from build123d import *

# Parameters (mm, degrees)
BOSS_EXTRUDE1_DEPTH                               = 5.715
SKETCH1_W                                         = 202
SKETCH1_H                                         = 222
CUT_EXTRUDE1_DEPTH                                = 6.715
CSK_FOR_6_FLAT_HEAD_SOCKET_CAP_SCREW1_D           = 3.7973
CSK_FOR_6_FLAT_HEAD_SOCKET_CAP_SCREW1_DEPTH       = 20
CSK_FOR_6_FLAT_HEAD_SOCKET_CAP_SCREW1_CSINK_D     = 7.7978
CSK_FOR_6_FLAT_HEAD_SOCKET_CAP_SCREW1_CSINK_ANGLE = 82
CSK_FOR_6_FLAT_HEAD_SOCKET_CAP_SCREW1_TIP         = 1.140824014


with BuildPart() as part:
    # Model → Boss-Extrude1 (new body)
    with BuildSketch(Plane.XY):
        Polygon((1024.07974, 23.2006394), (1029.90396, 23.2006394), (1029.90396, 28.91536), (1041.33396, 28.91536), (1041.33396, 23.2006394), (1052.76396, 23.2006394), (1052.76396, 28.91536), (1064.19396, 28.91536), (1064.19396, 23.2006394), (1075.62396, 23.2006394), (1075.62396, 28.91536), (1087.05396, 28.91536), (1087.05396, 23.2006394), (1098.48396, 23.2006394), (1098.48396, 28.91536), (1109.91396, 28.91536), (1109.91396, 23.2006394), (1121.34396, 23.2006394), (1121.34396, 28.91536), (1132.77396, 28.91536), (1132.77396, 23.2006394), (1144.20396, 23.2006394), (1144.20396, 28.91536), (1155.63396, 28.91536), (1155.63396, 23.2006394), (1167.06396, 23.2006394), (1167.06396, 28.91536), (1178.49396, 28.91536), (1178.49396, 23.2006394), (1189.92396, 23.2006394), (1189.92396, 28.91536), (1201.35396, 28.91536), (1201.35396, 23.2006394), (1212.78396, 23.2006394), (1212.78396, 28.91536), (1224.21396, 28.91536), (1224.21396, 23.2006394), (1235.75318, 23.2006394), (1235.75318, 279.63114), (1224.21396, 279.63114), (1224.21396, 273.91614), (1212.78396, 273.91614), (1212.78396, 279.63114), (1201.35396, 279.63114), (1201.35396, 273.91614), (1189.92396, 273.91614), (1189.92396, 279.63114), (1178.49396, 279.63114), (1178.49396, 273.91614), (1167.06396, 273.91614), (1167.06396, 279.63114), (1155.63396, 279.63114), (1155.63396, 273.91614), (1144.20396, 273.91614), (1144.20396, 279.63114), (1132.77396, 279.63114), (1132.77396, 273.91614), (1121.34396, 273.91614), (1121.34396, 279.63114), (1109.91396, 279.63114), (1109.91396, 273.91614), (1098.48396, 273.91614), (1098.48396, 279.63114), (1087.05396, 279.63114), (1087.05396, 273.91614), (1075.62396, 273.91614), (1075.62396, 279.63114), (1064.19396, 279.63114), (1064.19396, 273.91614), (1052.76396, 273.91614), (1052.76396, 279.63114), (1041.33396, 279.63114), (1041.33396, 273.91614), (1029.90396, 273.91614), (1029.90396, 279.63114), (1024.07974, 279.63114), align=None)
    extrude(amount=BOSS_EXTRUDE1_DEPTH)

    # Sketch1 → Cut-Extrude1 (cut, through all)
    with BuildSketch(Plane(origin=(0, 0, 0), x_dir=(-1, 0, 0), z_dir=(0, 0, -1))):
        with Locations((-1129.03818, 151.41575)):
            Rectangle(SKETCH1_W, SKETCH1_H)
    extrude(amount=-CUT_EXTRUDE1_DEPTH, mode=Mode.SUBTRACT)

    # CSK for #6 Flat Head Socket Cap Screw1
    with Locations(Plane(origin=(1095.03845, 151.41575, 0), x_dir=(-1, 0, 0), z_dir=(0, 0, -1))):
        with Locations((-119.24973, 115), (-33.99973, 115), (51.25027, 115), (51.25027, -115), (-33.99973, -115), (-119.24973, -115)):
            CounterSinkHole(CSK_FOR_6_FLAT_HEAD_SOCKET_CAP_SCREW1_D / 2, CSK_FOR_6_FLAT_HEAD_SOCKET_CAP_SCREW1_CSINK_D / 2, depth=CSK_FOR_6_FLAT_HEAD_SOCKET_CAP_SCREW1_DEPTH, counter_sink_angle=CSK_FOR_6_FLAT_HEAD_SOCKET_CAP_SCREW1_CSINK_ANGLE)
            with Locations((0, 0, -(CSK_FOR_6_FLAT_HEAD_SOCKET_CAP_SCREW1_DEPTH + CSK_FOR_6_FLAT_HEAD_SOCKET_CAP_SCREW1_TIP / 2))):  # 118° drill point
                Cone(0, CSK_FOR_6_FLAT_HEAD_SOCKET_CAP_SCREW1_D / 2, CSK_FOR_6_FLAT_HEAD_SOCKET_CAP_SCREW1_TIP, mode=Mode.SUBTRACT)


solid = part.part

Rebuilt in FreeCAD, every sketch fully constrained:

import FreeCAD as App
import Part
import Sketcher

doc = App.newDocument("Part")
body = doc.addObject("PartDesign::Body", "Body")

# Sketch on XY plane
sketch1 = body.newObject("Sketcher::SketchObject", "Sketch")
sketch1.AttachmentSupport = (doc.getObject("XY_Plane"), [""])
sketch1.MapMode = "FlatFace"
sketch1.addGeometry(Part.LineSegment(App.Vector(1024.07974, 23.200639, 0), App.Vector(1029.90396, 23.200639, 0)), False)
sketch1.addGeometry(Part.LineSegment(App.Vector(1029.90396, 23.200639, 0), App.Vector(1029.90396, 28.91536, 0)), False)
sketch1.addGeometry(Part.LineSegment(App.Vector(1029.90396, 28.91536, 0), App.Vector(1041.33396, 28.91536, 0)), False)
sketch1.addGeometry(Part.LineSegment(App.Vector(1041.33396, 28.91536, 0), App.Vector(1041.33396, 23.200639, 0)), False)
sketch1.addGeometry(Part.LineSegment(App.Vector(1041.33396, 23.200639, 0), App.Vector(1052.76396, 23.200639, 0)), False)
sketch1.addGeometry(Part.LineSegment(App.Vector(1052.76396, 23.200639, 0), App.Vector(1052.76396, 28.91536, 0)), False)
sketch1.addGeometry(Part.LineSegment(App.Vector(1052.76396, 28.91536, 0), App.Vector(1064.19396, 28.91536, 0)), False)
sketch1.addGeometry(Part.LineSegment(App.Vector(1064.19396, 28.91536, 0), App.Vector(1064.19396, 23.200639, 0)), False)
sketch1.addGeometry(Part.LineSegment(App.Vector(1064.19396, 23.200639, 0), App.Vector(1075.62396, 23.200639, 0)), False)
sketch1.addGeometry(Part.LineSegment(App.Vector(1075.62396, 23.200639, 0), App.Vector(1075.62396, 28.91536, 0)), False)
sketch1.addGeometry(Part.LineSegment(App.Vector(1075.62396, 28.91536, 0), App.Vector(1087.05396, 28.91536, 0)), False)
sketch1.addGeometry(Part.LineSegment(App.Vector(1087.05396, 28.91536, 0), App.Vector(1087.05396, 23.200639, 0)), False)
sketch1.addGeometry(Part.LineSegment(App.Vector(1087.05396, 23.200639, 0), App.Vector(1098.48396, 23.200639, 0)), False)
sketch1.addGeometry(Part.LineSegment(App.Vector(1098.48396, 23.200639, 0), App.Vector(1098.48396, 28.91536, 0)), False)
sketch1.addGeometry(Part.LineSegment(App.Vector(1098.48396, 28.91536, 0), App.Vector(1109.91396, 28.91536, 0)), False)
sketch1.addGeometry(Part.LineSegment(App.Vector(1109.91396, 28.91536, 0), App.Vector(1109.91396, 23.200639, 0)), False)
sketch1.addGeometry(Part.LineSegment(App.Vector(1109.91396, 23.200639, 0), App.Vector(1121.34396, 23.200639, 0)), False)
sketch1.addGeometry(Part.LineSegment(App.Vector(1121.34396, 23.200639, 0), App.Vector(1121.34396, 28.91536, 0)), False)
sketch1.addGeometry(Part.LineSegment(App.Vector(1121.34396, 28.91536, 0), App.Vector(1132.77396, 28.91536, 0)), False)
sketch1.addGeometry(Part.LineSegment(App.Vector(1132.77396, 28.91536, 0), App.Vector(1132.77396, 23.200639, 0)), False)
sketch1.addGeometry(Part.LineSegment(App.Vector(1132.77396, 23.200639, 0), App.Vector(1144.20396, 23.200639, 0)), False)
sketch1.addGeometry(Part.LineSegment(App.Vector(1144.20396, 23.200639, 0), App.Vector(1144.20396, 28.91536, 0)), False)
sketch1.addGeometry(Part.LineSegment(App.Vector(1144.20396, 28.91536, 0), App.Vector(1155.63396, 28.91536, 0)), False)
sketch1.addGeometry(Part.LineSegment(App.Vector(1155.63396, 28.91536, 0), App.Vector(1155.63396, 23.200639, 0)), False)
sketch1.addGeometry(Part.LineSegment(App.Vector(1155.63396, 23.200639, 0), App.Vector(1167.06396, 23.200639, 0)), False)
sketch1.addGeometry(Part.LineSegment(App.Vector(1167.06396, 23.200639, 0), App.Vector(1167.06396, 28.91536, 0)), False)
sketch1.addGeometry(Part.LineSegment(App.Vector(1167.06396, 28.91536, 0), App.Vector(1178.49396, 28.91536, 0)), False)
sketch1.addGeometry(Part.LineSegment(App.Vector(1178.49396, 28.91536, 0), App.Vector(1178.49396, 23.200639, 0)), False)
sketch1.addGeometry(Part.LineSegment(App.Vector(1178.49396, 23.200639, 0), App.Vector(1189.92396, 23.200639, 0)), False)
sketch1.addGeometry(Part.LineSegment(App.Vector(1189.92396, 23.200639, 0), App.Vector(1189.92396, 28.91536, 0)), False)
sketch1.addGeometry(Part.LineSegment(App.Vector(1189.92396, 28.91536, 0), App.Vector(1201.35396, 28.91536, 0)), False)
sketch1.addGeometry(Part.LineSegment(App.Vector(1201.35396, 28.91536, 0), App.Vector(1201.35396, 23.200639, 0)), False)
sketch1.addGeometry(Part.LineSegment(App.Vector(1201.35396, 23.200639, 0), App.Vector(1212.78396, 23.200639, 0)), False)
sketch1.addGeometry(Part.LineSegment(App.Vector(1212.78396, 23.200639, 0), App.Vector(1212.78396, 28.91536, 0)), False)
sketch1.addGeometry(Part.LineSegment(App.Vector(1212.78396, 28.91536, 0), App.Vector(1224.21396, 28.91536, 0)), False)
sketch1.addGeometry(Part.LineSegment(App.Vector(1224.21396, 28.91536, 0), App.Vector(1224.21396, 23.200639, 0)), False)
sketch1.addGeometry(Part.LineSegment(App.Vector(1224.21396, 23.200639, 0), App.Vector(1235.75318, 23.200639, 0)), False)
sketch1.addGeometry(Part.LineSegment(App.Vector(1235.75318, 23.200639, 0), App.Vector(1235.75318, 279.63114, 0)), False)
sketch1.addGeometry(Part.LineSegment(App.Vector(1235.75318, 279.63114, 0), App.Vector(1224.21396, 279.63114, 0)), False)
sketch1.addGeometry(Part.LineSegment(App.Vector(1224.21396, 279.63114, 0), App.Vector(1224.21396, 273.91614, 0)), False)
sketch1.addGeometry(Part.LineSegment(App.Vector(1224.21396, 273.91614, 0), App.Vector(1212.78396, 273.91614, 0)), False)
sketch1.addGeometry(Part.LineSegment(App.Vector(1212.78396, 273.91614, 0), App.Vector(1212.78396, 279.63114, 0)), False)
sketch1.addGeometry(Part.LineSegment(App.Vector(1212.78396, 279.63114, 0), App.Vector(1201.35396, 279.63114, 0)), False)
sketch1.addGeometry(Part.LineSegment(App.Vector(1201.35396, 279.63114, 0), App.Vector(1201.35396, 273.91614, 0)), False)
sketch1.addGeometry(Part.LineSegment(App.Vector(1201.35396, 273.91614, 0), App.Vector(1189.92396, 273.91614, 0)), False)
sketch1.addGeometry(Part.LineSegment(App.Vector(1189.92396, 273.91614, 0), App.Vector(1189.92396, 279.63114, 0)), False)
sketch1.addGeometry(Part.LineSegment(App.Vector(1189.92396, 279.63114, 0), App.Vector(1178.49396, 279.63114, 0)), False)
sketch1.addGeometry(Part.LineSegment(App.Vector(1178.49396, 279.63114, 0), App.Vector(1178.49396, 273.91614, 0)), False)
sketch1.addGeometry(Part.LineSegment(App.Vector(1178.49396, 273.91614, 0), App.Vector(1167.06396, 273.91614, 0)), False)
sketch1.addGeometry(Part.LineSegment(App.Vector(1167.06396, 273.91614, 0), App.Vector(1167.06396, 279.63114, 0)), False)
sketch1.addGeometry(Part.LineSegment(App.Vector(1167.06396, 279.63114, 0), App.Vector(1155.63396, 279.63114, 0)), False)
sketch1.addGeometry(Part.LineSegment(App.Vector(1155.63396, 279.63114, 0), App.Vector(1155.63396, 273.91614, 0)), False)
sketch1.addGeometry(Part.LineSegment(App.Vector(1155.63396, 273.91614, 0), App.Vector(1144.20396, 273.91614, 0)), False)
sketch1.addGeometry(Part.LineSegment(App.Vector(1144.20396, 273.91614, 0), App.Vector(1144.20396, 279.63114, 0)), False)
sketch1.addGeometry(Part.LineSegment(App.Vector(1144.20396, 279.63114, 0), App.Vector(1132.77396, 279.63114, 0)), False)
sketch1.addGeometry(Part.LineSegment(App.Vector(1132.77396, 279.63114, 0), App.Vector(1132.77396, 273.91614, 0)), False)
sketch1.addGeometry(Part.LineSegment(App.Vector(1132.77396, 273.91614, 0), App.Vector(1121.34396, 273.91614, 0)), False)
sketch1.addGeometry(Part.LineSegment(App.Vector(1121.34396, 273.91614, 0), App.Vector(1121.34396, 279.63114, 0)), False)
sketch1.addGeometry(Part.LineSegment(App.Vector(1121.34396, 279.63114, 0), App.Vector(1109.91396, 279.63114, 0)), False)
sketch1.addGeometry(Part.LineSegment(App.Vector(1109.91396, 279.63114, 0), App.Vector(1109.91396, 273.91614, 0)), False)
sketch1.addGeometry(Part.LineSegment(App.Vector(1109.91396, 273.91614, 0), App.Vector(1098.48396, 273.91614, 0)), False)
sketch1.addGeometry(Part.LineSegment(App.Vector(1098.48396, 273.91614, 0), App.Vector(1098.48396, 279.63114, 0)), False)
sketch1.addGeometry(Part.LineSegment(App.Vector(1098.48396, 279.63114, 0), App.Vector(1087.05396, 279.63114, 0)), False)
sketch1.addGeometry(Part.LineSegment(App.Vector(1087.05396, 279.63114, 0), App.Vector(1087.05396, 273.91614, 0)), False)
sketch1.addGeometry(Part.LineSegment(App.Vector(1087.05396, 273.91614, 0), App.Vector(1075.62396, 273.91614, 0)), False)
sketch1.addGeometry(Part.LineSegment(App.Vector(1075.62396, 273.91614, 0), App.Vector(1075.62396, 279.63114, 0)), False)
sketch1.addGeometry(Part.LineSegment(App.Vector(1075.62396, 279.63114, 0), App.Vector(1064.19396, 279.63114, 0)), False)
sketch1.addGeometry(Part.LineSegment(App.Vector(1064.19396, 279.63114, 0), App.Vector(1064.19396, 273.91614, 0)), False)
sketch1.addGeometry(Part.LineSegment(App.Vector(1064.19396, 273.91614, 0), App.Vector(1052.76396, 273.91614, 0)), False)
sketch1.addGeometry(Part.LineSegment(App.Vector(1052.76396, 273.91614, 0), App.Vector(1052.76396, 279.63114, 0)), False)
sketch1.addGeometry(Part.LineSegment(App.Vector(1052.76396, 279.63114, 0), App.Vector(1041.33396, 279.63114, 0)), False)
sketch1.addGeometry(Part.LineSegment(App.Vector(1041.33396, 279.63114, 0), App.Vector(1041.33396, 273.91614, 0)), False)
sketch1.addGeometry(Part.LineSegment(App.Vector(1041.33396, 273.91614, 0), App.Vector(1029.90396, 273.91614, 0)), False)
sketch1.addGeometry(Part.LineSegment(App.Vector(1029.90396, 273.91614, 0), App.Vector(1029.90396, 279.63114, 0)), False)
sketch1.addGeometry(Part.LineSegment(App.Vector(1029.90396, 279.63114, 0), App.Vector(1024.07974, 279.63114, 0)), False)
sketch1.addGeometry(Part.LineSegment(App.Vector(1024.07974, 279.63114, 0), App.Vector(1024.07974, 23.200639, 0)), False)
sketch1.addConstraint(Sketcher.Constraint("Coincident", 0, 2, 1, 1))
sketch1.addConstraint(Sketcher.Constraint("Coincident", 1, 2, 2, 1))
sketch1.addConstraint(Sketcher.Constraint("Coincident", 2, 2, 3, 1))
sketch1.addConstraint(Sketcher.Constraint("Coincident", 3, 2, 4, 1))
sketch1.addConstraint(Sketcher.Constraint("Coincident", 4, 2, 5, 1))
sketch1.addConstraint(Sketcher.Constraint("Coincident", 5, 2, 6, 1))
sketch1.addConstraint(Sketcher.Constraint("Coincident", 6, 2, 7, 1))
sketch1.addConstraint(Sketcher.Constraint("Coincident", 7, 2, 8, 1))
sketch1.addConstraint(Sketcher.Constraint("Coincident", 8, 2, 9, 1))
sketch1.addConstraint(Sketcher.Constraint("Coincident", 9, 2, 10, 1))
sketch1.addConstraint(Sketcher.Constraint("Coincident", 10, 2, 11, 1))
sketch1.addConstraint(Sketcher.Constraint("Coincident", 11, 2, 12, 1))
sketch1.addConstraint(Sketcher.Constraint("Coincident", 12, 2, 13, 1))
sketch1.addConstraint(Sketcher.Constraint("Coincident", 13, 2, 14, 1))
sketch1.addConstraint(Sketcher.Constraint("Coincident", 14, 2, 15, 1))
sketch1.addConstraint(Sketcher.Constraint("Coincident", 15, 2, 16, 1))
sketch1.addConstraint(Sketcher.Constraint("Coincident", 16, 2, 17, 1))
sketch1.addConstraint(Sketcher.Constraint("Coincident", 17, 2, 18, 1))
sketch1.addConstraint(Sketcher.Constraint("Coincident", 18, 2, 19, 1))
sketch1.addConstraint(Sketcher.Constraint("Coincident", 19, 2, 20, 1))
sketch1.addConstraint(Sketcher.Constraint("Coincident", 20, 2, 21, 1))
sketch1.addConstraint(Sketcher.Constraint("Coincident", 21, 2, 22, 1))
sketch1.addConstraint(Sketcher.Constraint("Coincident", 22, 2, 23, 1))
sketch1.addConstraint(Sketcher.Constraint("Coincident", 23, 2, 24, 1))
sketch1.addConstraint(Sketcher.Constraint("Coincident", 24, 2, 25, 1))
sketch1.addConstraint(Sketcher.Constraint("Coincident", 25, 2, 26, 1))
sketch1.addConstraint(Sketcher.Constraint("Coincident", 26, 2, 27, 1))
sketch1.addConstraint(Sketcher.Constraint("Coincident", 27, 2, 28, 1))
sketch1.addConstraint(Sketcher.Constraint("Coincident", 28, 2, 29, 1))
sketch1.addConstraint(Sketcher.Constraint("Coincident", 29, 2, 30, 1))
sketch1.addConstraint(Sketcher.Constraint("Coincident", 30, 2, 31, 1))
sketch1.addConstraint(Sketcher.Constraint("Coincident", 31, 2, 32, 1))
sketch1.addConstraint(Sketcher.Constraint("Coincident", 32, 2, 33, 1))
sketch1.addConstraint(Sketcher.Constraint("Coincident", 33, 2, 34, 1))
sketch1.addConstraint(Sketcher.Constraint("Coincident", 34, 2, 35, 1))
sketch1.addConstraint(Sketcher.Constraint("Coincident", 35, 2, 36, 1))
sketch1.addConstraint(Sketcher.Constraint("Coincident", 36, 2, 37, 1))
sketch1.addConstraint(Sketcher.Constraint("Coincident", 37, 2, 38, 1))
sketch1.addConstraint(Sketcher.Constraint("Coincident", 38, 2, 39, 1))
sketch1.addConstraint(Sketcher.Constraint("Coincident", 39, 2, 40, 1))
sketch1.addConstraint(Sketcher.Constraint("Coincident", 40, 2, 41, 1))
sketch1.addConstraint(Sketcher.Constraint("Coincident", 41, 2, 42, 1))
sketch1.addConstraint(Sketcher.Constraint("Coincident", 42, 2, 43, 1))
sketch1.addConstraint(Sketcher.Constraint("Coincident", 43, 2, 44, 1))
sketch1.addConstraint(Sketcher.Constraint("Coincident", 44, 2, 45, 1))
sketch1.addConstraint(Sketcher.Constraint("Coincident", 45, 2, 46, 1))
sketch1.addConstraint(Sketcher.Constraint("Coincident", 46, 2, 47, 1))
sketch1.addConstraint(Sketcher.Constraint("Coincident", 47, 2, 48, 1))
sketch1.addConstraint(Sketcher.Constraint("Coincident", 48, 2, 49, 1))
sketch1.addConstraint(Sketcher.Constraint("Coincident", 49, 2, 50, 1))
sketch1.addConstraint(Sketcher.Constraint("Coincident", 50, 2, 51, 1))
sketch1.addConstraint(Sketcher.Constraint("Coincident", 51, 2, 52, 1))
sketch1.addConstraint(Sketcher.Constraint("Coincident", 52, 2, 53, 1))
sketch1.addConstraint(Sketcher.Constraint("Coincident", 53, 2, 54, 1))
sketch1.addConstraint(Sketcher.Constraint("Coincident", 54, 2, 55, 1))
sketch1.addConstraint(Sketcher.Constraint("Coincident", 55, 2, 56, 1))
sketch1.addConstraint(Sketcher.Constraint("Coincident", 56, 2, 57, 1))
sketch1.addConstraint(Sketcher.Constraint("Coincident", 57, 2, 58, 1))
sketch1.addConstraint(Sketcher.Constraint("Coincident", 58, 2, 59, 1))
sketch1.addConstraint(Sketcher.Constraint("Coincident", 59, 2, 60, 1))
sketch1.addConstraint(Sketcher.Constraint("Coincident", 60, 2, 61, 1))
sketch1.addConstraint(Sketcher.Constraint("Coincident", 61, 2, 62, 1))
sketch1.addConstraint(Sketcher.Constraint("Coincident", 62, 2, 63, 1))
sketch1.addConstraint(Sketcher.Constraint("Coincident", 63, 2, 64, 1))
sketch1.addConstraint(Sketcher.Constraint("Coincident", 64, 2, 65, 1))
sketch1.addConstraint(Sketcher.Constraint("Coincident", 65, 2, 66, 1))
sketch1.addConstraint(Sketcher.Constraint("Coincident", 66, 2, 67, 1))
sketch1.addConstraint(Sketcher.Constraint("Coincident", 67, 2, 68, 1))
sketch1.addConstraint(Sketcher.Constraint("Coincident", 68, 2, 69, 1))
sketch1.addConstraint(Sketcher.Constraint("Coincident", 69, 2, 70, 1))
sketch1.addConstraint(Sketcher.Constraint("Coincident", 70, 2, 71, 1))
sketch1.addConstraint(Sketcher.Constraint("Coincident", 71, 2, 72, 1))
sketch1.addConstraint(Sketcher.Constraint("Coincident", 72, 2, 73, 1))
sketch1.addConstraint(Sketcher.Constraint("Coincident", 73, 2, 74, 1))
sketch1.addConstraint(Sketcher.Constraint("Coincident", 74, 2, 75, 1))
sketch1.addConstraint(Sketcher.Constraint("Coincident", 75, 2, 0, 1))
sketch1.addConstraint(Sketcher.Constraint("Horizontal", 0))
sketch1.addConstraint(Sketcher.Constraint("Vertical", 1))
sketch1.addConstraint(Sketcher.Constraint("Horizontal", 2))
sketch1.addConstraint(Sketcher.Constraint("Vertical", 3))
sketch1.addConstraint(Sketcher.Constraint("Horizontal", 4))
sketch1.addConstraint(Sketcher.Constraint("Vertical", 5))
sketch1.addConstraint(Sketcher.Constraint("Horizontal", 6))
sketch1.addConstraint(Sketcher.Constraint("Vertical", 7))
sketch1.addConstraint(Sketcher.Constraint("Horizontal", 8))
sketch1.addConstraint(Sketcher.Constraint("Vertical", 9))
sketch1.addConstraint(Sketcher.Constraint("Horizontal", 10))
sketch1.addConstraint(Sketcher.Constraint("Vertical", 11))
sketch1.addConstraint(Sketcher.Constraint("Horizontal", 12))
sketch1.addConstraint(Sketcher.Constraint("Vertical", 13))
sketch1.addConstraint(Sketcher.Constraint("Horizontal", 14))
sketch1.addConstraint(Sketcher.Constraint("Vertical", 15))
sketch1.addConstraint(Sketcher.Constraint("Horizontal", 16))
sketch1.addConstraint(Sketcher.Constraint("Vertical", 17))
sketch1.addConstraint(Sketcher.Constraint("Horizontal", 18))
sketch1.addConstraint(Sketcher.Constraint("Vertical", 19))
sketch1.addConstraint(Sketcher.Constraint("Horizontal", 20))
sketch1.addConstraint(Sketcher.Constraint("Vertical", 21))
sketch1.addConstraint(Sketcher.Constraint("Horizontal", 22))
sketch1.addConstraint(Sketcher.Constraint("Vertical", 23))
sketch1.addConstraint(Sketcher.Constraint("Horizontal", 24))
sketch1.addConstraint(Sketcher.Constraint("Vertical", 25))
sketch1.addConstraint(Sketcher.Constraint("Horizontal", 26))
sketch1.addConstraint(Sketcher.Constraint("Vertical", 27))
sketch1.addConstraint(Sketcher.Constraint("Horizontal", 28))
sketch1.addConstraint(Sketcher.Constraint("Vertical", 29))
sketch1.addConstraint(Sketcher.Constraint("Horizontal", 30))
sketch1.addConstraint(Sketcher.Constraint("Vertical", 31))
sketch1.addConstraint(Sketcher.Constraint("Horizontal", 32))
sketch1.addConstraint(Sketcher.Constraint("Vertical", 33))
sketch1.addConstraint(Sketcher.Constraint("Horizontal", 34))
sketch1.addConstraint(Sketcher.Constraint("Vertical", 35))
sketch1.addConstraint(Sketcher.Constraint("Horizontal", 36))
sketch1.addConstraint(Sketcher.Constraint("Vertical", 37))
sketch1.addConstraint(Sketcher.Constraint("Horizontal", 38))
sketch1.addConstraint(Sketcher.Constraint("Vertical", 39))
sketch1.addConstraint(Sketcher.Constraint("Horizontal", 40))
sketch1.addConstraint(Sketcher.Constraint("Vertical", 41))
sketch1.addConstraint(Sketcher.Constraint("Horizontal", 42))
sketch1.addConstraint(Sketcher.Constraint("Vertical", 43))
sketch1.addConstraint(Sketcher.Constraint("Horizontal", 44))
sketch1.addConstraint(Sketcher.Constraint("Vertical", 45))
sketch1.addConstraint(Sketcher.Constraint("Horizontal", 46))
sketch1.addConstraint(Sketcher.Constraint("Vertical", 47))
sketch1.addConstraint(Sketcher.Constraint("Horizontal", 48))
sketch1.addConstraint(Sketcher.Constraint("Vertical", 49))
sketch1.addConstraint(Sketcher.Constraint("Horizontal", 50))
sketch1.addConstraint(Sketcher.Constraint("Vertical", 51))
sketch1.addConstraint(Sketcher.Constraint("Horizontal", 52))
sketch1.addConstraint(Sketcher.Constraint("Vertical", 53))
sketch1.addConstraint(Sketcher.Constraint("Horizontal", 54))
sketch1.addConstraint(Sketcher.Constraint("Vertical", 55))
sketch1.addConstraint(Sketcher.Constraint("Horizontal", 56))
sketch1.addConstraint(Sketcher.Constraint("Vertical", 57))
sketch1.addConstraint(Sketcher.Constraint("Horizontal", 58))
sketch1.addConstraint(Sketcher.Constraint("Vertical", 59))
sketch1.addConstraint(Sketcher.Constraint("Horizontal", 60))
sketch1.addConstraint(Sketcher.Constraint("Vertical", 61))
sketch1.addConstraint(Sketcher.Constraint("Horizontal", 62))
sketch1.addConstraint(Sketcher.Constraint("Vertical", 63))
sketch1.addConstraint(Sketcher.Constraint("Horizontal", 64))
sketch1.addConstraint(Sketcher.Constraint("Vertical", 65))
sketch1.addConstraint(Sketcher.Constraint("Horizontal", 66))
sketch1.addConstraint(Sketcher.Constraint("Vertical", 67))
sketch1.addConstraint(Sketcher.Constraint("Horizontal", 68))
sketch1.addConstraint(Sketcher.Constraint("Vertical", 69))
sketch1.addConstraint(Sketcher.Constraint("Horizontal", 70))
sketch1.addConstraint(Sketcher.Constraint("Vertical", 71))
sketch1.addConstraint(Sketcher.Constraint("Horizontal", 72))
sketch1.addConstraint(Sketcher.Constraint("Vertical", 73))
sketch1.addConstraint(Sketcher.Constraint("Horizontal", 74))
sketch1.addConstraint(Sketcher.Constraint("Vertical", 75))
sketch1.addConstraint(Sketcher.Constraint("Horizontal", 0, 2, 3, 2))
sketch1.addConstraint(Sketcher.Constraint("Horizontal", 2, 2, 5, 2))
sketch1.addConstraint(Sketcher.Constraint("Horizontal", 4, 2, 7, 2))
sketch1.addConstraint(Sketcher.Constraint("Horizontal", 6, 2, 9, 2))
sketch1.addConstraint(Sketcher.Constraint("Horizontal", 8, 2, 11, 2))
sketch1.addConstraint(Sketcher.Constraint("Horizontal", 10, 2, 13, 2))
sketch1.addConstraint(Sketcher.Constraint("Horizontal", 12, 2, 15, 2))
sketch1.addConstraint(Sketcher.Constraint("Horizontal", 14, 2, 17, 2))
sketch1.addConstraint(Sketcher.Constraint("Horizontal", 16, 2, 19, 2))
sketch1.addConstraint(Sketcher.Constraint("Horizontal", 18, 2, 21, 2))
sketch1.addConstraint(Sketcher.Constraint("Horizontal", 20, 2, 23, 2))
sketch1.addConstraint(Sketcher.Constraint("Horizontal", 22, 2, 25, 2))
sketch1.addConstraint(Sketcher.Constraint("Horizontal", 24, 2, 27, 2))
sketch1.addConstraint(Sketcher.Constraint("Horizontal", 26, 2, 29, 2))
sketch1.addConstraint(Sketcher.Constraint("Horizontal", 28, 2, 31, 2))
sketch1.addConstraint(Sketcher.Constraint("Horizontal", 30, 2, 33, 2))
sketch1.addConstraint(Sketcher.Constraint("Horizontal", 32, 2, 35, 2))
sketch1.addConstraint(Sketcher.Constraint("Horizontal", 38, 2, 41, 2))
sketch1.addConstraint(Sketcher.Constraint("Horizontal", 40, 2, 43, 2))
sketch1.addConstraint(Sketcher.Constraint("Horizontal", 42, 2, 45, 2))
sketch1.addConstraint(Sketcher.Constraint("Horizontal", 44, 2, 47, 2))
sketch1.addConstraint(Sketcher.Constraint("Horizontal", 46, 2, 49, 2))
sketch1.addConstraint(Sketcher.Constraint("Horizontal", 48, 2, 51, 2))
sketch1.addConstraint(Sketcher.Constraint("Horizontal", 50, 2, 53, 2))
sketch1.addConstraint(Sketcher.Constraint("Horizontal", 52, 2, 55, 2))
sketch1.addConstraint(Sketcher.Constraint("Horizontal", 54, 2, 57, 2))
sketch1.addConstraint(Sketcher.Constraint("Horizontal", 56, 2, 59, 2))
sketch1.addConstraint(Sketcher.Constraint("Horizontal", 58, 2, 61, 2))
sketch1.addConstraint(Sketcher.Constraint("Horizontal", 60, 2, 63, 2))
sketch1.addConstraint(Sketcher.Constraint("Horizontal", 62, 2, 65, 2))
sketch1.addConstraint(Sketcher.Constraint("Horizontal", 64, 2, 67, 2))
sketch1.addConstraint(Sketcher.Constraint("Horizontal", 66, 2, 69, 2))
sketch1.addConstraint(Sketcher.Constraint("Horizontal", 68, 2, 71, 2))
sketch1.addConstraint(Sketcher.Constraint("Horizontal", 70, 2, 73, 2))
sketch1.addConstraint(Sketcher.Constraint("Vertical", 35, 2, 38, 2))
sketch1.addConstraint(Sketcher.Constraint("Vertical", 33, 2, 40, 2))
sketch1.addConstraint(Sketcher.Constraint("Vertical", 31, 2, 42, 2))
sketch1.addConstraint(Sketcher.Constraint("Vertical", 29, 2, 44, 2))
sketch1.addConstraint(Sketcher.Constraint("Vertical", 27, 2, 46, 2))
sketch1.addConstraint(Sketcher.Constraint("Vertical", 25, 2, 48, 2))
sketch1.addConstraint(Sketcher.Constraint("Vertical", 23, 2, 50, 2))
sketch1.addConstraint(Sketcher.Constraint("Vertical", 21, 2, 52, 2))
sketch1.addConstraint(Sketcher.Constraint("Vertical", 19, 2, 54, 2))
sketch1.addConstraint(Sketcher.Constraint("Vertical", 17, 2, 56, 2))
sketch1.addConstraint(Sketcher.Constraint("Vertical", 15, 2, 58, 2))
sketch1.addConstraint(Sketcher.Constraint("Vertical", 13, 2, 60, 2))
sketch1.addConstraint(Sketcher.Constraint("Vertical", 11, 2, 62, 2))
sketch1.addConstraint(Sketcher.Constraint("Vertical", 9, 2, 64, 2))
sketch1.addConstraint(Sketcher.Constraint("Vertical", 7, 2, 66, 2))
sketch1.addConstraint(Sketcher.Constraint("Vertical", 5, 2, 68, 2))
sketch1.addConstraint(Sketcher.Constraint("Vertical", 3, 2, 70, 2))
sketch1.addConstraint(Sketcher.Constraint("Vertical", 1, 2, 72, 2))
sketch1.addConstraint(Sketcher.Constraint("Equal", 2, 4))
sketch1.addConstraint(Sketcher.Constraint("Equal", 4, 6))
sketch1.addConstraint(Sketcher.Constraint("Equal", 6, 8))
sketch1.addConstraint(Sketcher.Constraint("Equal", 8, 10))
sketch1.addConstraint(Sketcher.Constraint("Equal", 10, 12))
sketch1.addConstraint(Sketcher.Constraint("Equal", 12, 14))
sketch1.addConstraint(Sketcher.Constraint("Equal", 14, 16))
sketch1.addConstraint(Sketcher.Constraint("Equal", 16, 18))
sketch1.addConstraint(Sketcher.Constraint("Equal", 18, 20))
sketch1.addConstraint(Sketcher.Constraint("Equal", 20, 22))
sketch1.addConstraint(Sketcher.Constraint("Equal", 22, 24))
sketch1.addConstraint(Sketcher.Constraint("Equal", 24, 26))
sketch1.addConstraint(Sketcher.Constraint("Equal", 26, 28))
sketch1.addConstraint(Sketcher.Constraint("Equal", 28, 30))
sketch1.addConstraint(Sketcher.Constraint("Equal", 30, 32))
sketch1.addConstraint(Sketcher.Constraint("Equal", 32, 34))
sketch1.addConstraint(Sketcher.Constraint("DistanceX", 2, 1, 2, 2, 11.43))
sketch1.addConstraint(Sketcher.Constraint("DistanceY", 39, 2, 39, 1, 5.715))
sketch1.addConstraint(Sketcher.Constraint("DistanceY", 37, 1, 37, 2, 256.430501))
sketch1.addConstraint(Sketcher.Constraint("DistanceX", 0, 1, 0, 2, 5.82422))
sketch1.addConstraint(Sketcher.Constraint("DistanceX", 36, 1, 36, 2, 11.53922))
sketch1.addConstraint(Sketcher.Constraint("DistanceY", 1, 1, 1, 2, 5.714721))
sketch1.addConstraint(Sketcher.Constraint("DistanceX", -1, 1, 0, 2, 1029.90396))
sketch1.addConstraint(Sketcher.Constraint("DistanceY", -1, 1, 0, 2, 23.200639))
pad1 = body.newObject("PartDesign::Pad", "Pad")
pad1.Profile = sketch1
pad1.Length = 5.715

# Sketch on XY plane
sketch2 = body.newObject("Sketcher::SketchObject", "Sketch001")
sketch2.AttachmentSupport = (doc.getObject("XY_Plane"), [""])
sketch2.MapMode = "FlatFace"
sketch2.addGeometry(Part.LineSegment(App.Vector(1230.03818, 262.41575, 0), App.Vector(1230.03818, 40.41575, 0)), False)
sketch2.addGeometry(Part.LineSegment(App.Vector(1230.03818, 40.41575, 0), App.Vector(1028.03818, 40.41575, 0)), False)
sketch2.addGeometry(Part.LineSegment(App.Vector(1028.03818, 40.41575, 0), App.Vector(1028.03818, 262.41575, 0)), False)
sketch2.addGeometry(Part.LineSegment(App.Vector(1028.03818, 262.41575, 0), App.Vector(1230.03818, 262.41575, 0)), False)
sketch2.addConstraint(Sketcher.Constraint("Coincident", 0, 2, 1, 1))
sketch2.addConstraint(Sketcher.Constraint("Coincident", 1, 2, 2, 1))
sketch2.addConstraint(Sketcher.Constraint("Coincident", 2, 2, 3, 1))
sketch2.addConstraint(Sketcher.Constraint("Coincident", 3, 2, 0, 1))
sketch2.addConstraint(Sketcher.Constraint("Vertical", 0))
sketch2.addConstraint(Sketcher.Constraint("Horizontal", 1))
sketch2.addConstraint(Sketcher.Constraint("Vertical", 2))
sketch2.addConstraint(Sketcher.Constraint("Horizontal", 3))
sketch2.addConstraint(Sketcher.Constraint("DistanceX", 1, 2, 1, 1, 202.0))
sketch2.addConstraint(Sketcher.Constraint("DistanceY", 0, 2, 0, 1, 222.0))
sketch2.addConstraint(Sketcher.Constraint("DistanceX", -1, 1, 0, 2, 1230.03818))
sketch2.addConstraint(Sketcher.Constraint("DistanceY", -1, 1, 0, 2, 40.41575))
pocket1 = body.newObject("PartDesign::Pocket", "Pocket")
pocket1.Profile = sketch2
pocket1.Type = "ThroughAll"
pocket1.Reversed = True

# Sketch on XY plane
sketch3 = body.newObject("Sketcher::SketchObject", "Sketch002")
sketch3.AttachmentSupport = (doc.getObject("XY_Plane"), [""])
sketch3.MapMode = "FlatFace"
sketch3.addGeometry(Part.Circle(App.Vector(1214.28818, 266.41575, 0), App.Vector(0, 0, 1), 1.89865), False)
sketch3.addGeometry(Part.Circle(App.Vector(1129.03818, 266.41575, 0), App.Vector(0, 0, 1), 1.89865), False)
sketch3.addGeometry(Part.Circle(App.Vector(1043.78818, 266.41575, 0), App.Vector(0, 0, 1), 1.89865), False)
sketch3.addGeometry(Part.Circle(App.Vector(1043.78818, 36.41575, 0), App.Vector(0, 0, 1), 1.89865), False)
sketch3.addGeometry(Part.Circle(App.Vector(1129.03818, 36.41575, 0), App.Vector(0, 0, 1), 1.89865), False)
sketch3.addGeometry(Part.Circle(App.Vector(1214.28818, 36.41575, 0), App.Vector(0, 0, 1), 1.89865), False)
sketch3.addConstraint(Sketcher.Constraint("Equal", 0, 1))
sketch3.addConstraint(Sketcher.Constraint("Equal", 1, 2))
sketch3.addConstraint(Sketcher.Constraint("Equal", 2, 3))
sketch3.addConstraint(Sketcher.Constraint("Equal", 3, 4))
sketch3.addConstraint(Sketcher.Constraint("Equal", 4, 5))
sketch3.addConstraint(Sketcher.Constraint("Horizontal", 0, 3, 1, 3))
sketch3.addConstraint(Sketcher.Constraint("Horizontal", 1, 3, 2, 3))
sketch3.addConstraint(Sketcher.Constraint("Horizontal", 3, 3, 4, 3))
sketch3.addConstraint(Sketcher.Constraint("Horizontal", 4, 3, 5, 3))
sketch3.addConstraint(Sketcher.Constraint("Vertical", 2, 3, 3, 3))
sketch3.addConstraint(Sketcher.Constraint("Vertical", 1, 3, 4, 3))
sketch3.addConstraint(Sketcher.Constraint("Vertical", 0, 3, 5, 3))
sketch3.addConstraint(Sketcher.Constraint("DistanceY", 3, 3, 2, 3, 230.0))
sketch3.addConstraint(Sketcher.Constraint("Diameter", 0, 3.7973))
sketch3.addConstraint(Sketcher.Constraint("DistanceX", 2, 3, 0, 3, 170.5))
sketch3.addConstraint(Sketcher.Constraint("DistanceX", 1, 3, 0, 3, 85.25))
sketch3.addConstraint(Sketcher.Constraint("DistanceX", -1, 1, 0, 3, 1214.28818))
sketch3.addConstraint(Sketcher.Constraint("DistanceY", -1, 1, 0, 3, 266.41575))
doc.recompute()
hole = body.newObject("PartDesign::Hole", "Hole")
hole.Profile = sketch3
hole.ThreadType = "None"
hole.Diameter = 3.7973
hole.DepthType = "Dimension"
hole.Depth = 20
hole.DrillPoint = "Angled"
hole.DrillPointAngle = 118
hole.HoleCutType = "Countersink"
hole.HoleCutDiameter = 7.7978
hole.HoleCutCountersinkAngle = 82
hole.Reversed = True

doc.recompute()
